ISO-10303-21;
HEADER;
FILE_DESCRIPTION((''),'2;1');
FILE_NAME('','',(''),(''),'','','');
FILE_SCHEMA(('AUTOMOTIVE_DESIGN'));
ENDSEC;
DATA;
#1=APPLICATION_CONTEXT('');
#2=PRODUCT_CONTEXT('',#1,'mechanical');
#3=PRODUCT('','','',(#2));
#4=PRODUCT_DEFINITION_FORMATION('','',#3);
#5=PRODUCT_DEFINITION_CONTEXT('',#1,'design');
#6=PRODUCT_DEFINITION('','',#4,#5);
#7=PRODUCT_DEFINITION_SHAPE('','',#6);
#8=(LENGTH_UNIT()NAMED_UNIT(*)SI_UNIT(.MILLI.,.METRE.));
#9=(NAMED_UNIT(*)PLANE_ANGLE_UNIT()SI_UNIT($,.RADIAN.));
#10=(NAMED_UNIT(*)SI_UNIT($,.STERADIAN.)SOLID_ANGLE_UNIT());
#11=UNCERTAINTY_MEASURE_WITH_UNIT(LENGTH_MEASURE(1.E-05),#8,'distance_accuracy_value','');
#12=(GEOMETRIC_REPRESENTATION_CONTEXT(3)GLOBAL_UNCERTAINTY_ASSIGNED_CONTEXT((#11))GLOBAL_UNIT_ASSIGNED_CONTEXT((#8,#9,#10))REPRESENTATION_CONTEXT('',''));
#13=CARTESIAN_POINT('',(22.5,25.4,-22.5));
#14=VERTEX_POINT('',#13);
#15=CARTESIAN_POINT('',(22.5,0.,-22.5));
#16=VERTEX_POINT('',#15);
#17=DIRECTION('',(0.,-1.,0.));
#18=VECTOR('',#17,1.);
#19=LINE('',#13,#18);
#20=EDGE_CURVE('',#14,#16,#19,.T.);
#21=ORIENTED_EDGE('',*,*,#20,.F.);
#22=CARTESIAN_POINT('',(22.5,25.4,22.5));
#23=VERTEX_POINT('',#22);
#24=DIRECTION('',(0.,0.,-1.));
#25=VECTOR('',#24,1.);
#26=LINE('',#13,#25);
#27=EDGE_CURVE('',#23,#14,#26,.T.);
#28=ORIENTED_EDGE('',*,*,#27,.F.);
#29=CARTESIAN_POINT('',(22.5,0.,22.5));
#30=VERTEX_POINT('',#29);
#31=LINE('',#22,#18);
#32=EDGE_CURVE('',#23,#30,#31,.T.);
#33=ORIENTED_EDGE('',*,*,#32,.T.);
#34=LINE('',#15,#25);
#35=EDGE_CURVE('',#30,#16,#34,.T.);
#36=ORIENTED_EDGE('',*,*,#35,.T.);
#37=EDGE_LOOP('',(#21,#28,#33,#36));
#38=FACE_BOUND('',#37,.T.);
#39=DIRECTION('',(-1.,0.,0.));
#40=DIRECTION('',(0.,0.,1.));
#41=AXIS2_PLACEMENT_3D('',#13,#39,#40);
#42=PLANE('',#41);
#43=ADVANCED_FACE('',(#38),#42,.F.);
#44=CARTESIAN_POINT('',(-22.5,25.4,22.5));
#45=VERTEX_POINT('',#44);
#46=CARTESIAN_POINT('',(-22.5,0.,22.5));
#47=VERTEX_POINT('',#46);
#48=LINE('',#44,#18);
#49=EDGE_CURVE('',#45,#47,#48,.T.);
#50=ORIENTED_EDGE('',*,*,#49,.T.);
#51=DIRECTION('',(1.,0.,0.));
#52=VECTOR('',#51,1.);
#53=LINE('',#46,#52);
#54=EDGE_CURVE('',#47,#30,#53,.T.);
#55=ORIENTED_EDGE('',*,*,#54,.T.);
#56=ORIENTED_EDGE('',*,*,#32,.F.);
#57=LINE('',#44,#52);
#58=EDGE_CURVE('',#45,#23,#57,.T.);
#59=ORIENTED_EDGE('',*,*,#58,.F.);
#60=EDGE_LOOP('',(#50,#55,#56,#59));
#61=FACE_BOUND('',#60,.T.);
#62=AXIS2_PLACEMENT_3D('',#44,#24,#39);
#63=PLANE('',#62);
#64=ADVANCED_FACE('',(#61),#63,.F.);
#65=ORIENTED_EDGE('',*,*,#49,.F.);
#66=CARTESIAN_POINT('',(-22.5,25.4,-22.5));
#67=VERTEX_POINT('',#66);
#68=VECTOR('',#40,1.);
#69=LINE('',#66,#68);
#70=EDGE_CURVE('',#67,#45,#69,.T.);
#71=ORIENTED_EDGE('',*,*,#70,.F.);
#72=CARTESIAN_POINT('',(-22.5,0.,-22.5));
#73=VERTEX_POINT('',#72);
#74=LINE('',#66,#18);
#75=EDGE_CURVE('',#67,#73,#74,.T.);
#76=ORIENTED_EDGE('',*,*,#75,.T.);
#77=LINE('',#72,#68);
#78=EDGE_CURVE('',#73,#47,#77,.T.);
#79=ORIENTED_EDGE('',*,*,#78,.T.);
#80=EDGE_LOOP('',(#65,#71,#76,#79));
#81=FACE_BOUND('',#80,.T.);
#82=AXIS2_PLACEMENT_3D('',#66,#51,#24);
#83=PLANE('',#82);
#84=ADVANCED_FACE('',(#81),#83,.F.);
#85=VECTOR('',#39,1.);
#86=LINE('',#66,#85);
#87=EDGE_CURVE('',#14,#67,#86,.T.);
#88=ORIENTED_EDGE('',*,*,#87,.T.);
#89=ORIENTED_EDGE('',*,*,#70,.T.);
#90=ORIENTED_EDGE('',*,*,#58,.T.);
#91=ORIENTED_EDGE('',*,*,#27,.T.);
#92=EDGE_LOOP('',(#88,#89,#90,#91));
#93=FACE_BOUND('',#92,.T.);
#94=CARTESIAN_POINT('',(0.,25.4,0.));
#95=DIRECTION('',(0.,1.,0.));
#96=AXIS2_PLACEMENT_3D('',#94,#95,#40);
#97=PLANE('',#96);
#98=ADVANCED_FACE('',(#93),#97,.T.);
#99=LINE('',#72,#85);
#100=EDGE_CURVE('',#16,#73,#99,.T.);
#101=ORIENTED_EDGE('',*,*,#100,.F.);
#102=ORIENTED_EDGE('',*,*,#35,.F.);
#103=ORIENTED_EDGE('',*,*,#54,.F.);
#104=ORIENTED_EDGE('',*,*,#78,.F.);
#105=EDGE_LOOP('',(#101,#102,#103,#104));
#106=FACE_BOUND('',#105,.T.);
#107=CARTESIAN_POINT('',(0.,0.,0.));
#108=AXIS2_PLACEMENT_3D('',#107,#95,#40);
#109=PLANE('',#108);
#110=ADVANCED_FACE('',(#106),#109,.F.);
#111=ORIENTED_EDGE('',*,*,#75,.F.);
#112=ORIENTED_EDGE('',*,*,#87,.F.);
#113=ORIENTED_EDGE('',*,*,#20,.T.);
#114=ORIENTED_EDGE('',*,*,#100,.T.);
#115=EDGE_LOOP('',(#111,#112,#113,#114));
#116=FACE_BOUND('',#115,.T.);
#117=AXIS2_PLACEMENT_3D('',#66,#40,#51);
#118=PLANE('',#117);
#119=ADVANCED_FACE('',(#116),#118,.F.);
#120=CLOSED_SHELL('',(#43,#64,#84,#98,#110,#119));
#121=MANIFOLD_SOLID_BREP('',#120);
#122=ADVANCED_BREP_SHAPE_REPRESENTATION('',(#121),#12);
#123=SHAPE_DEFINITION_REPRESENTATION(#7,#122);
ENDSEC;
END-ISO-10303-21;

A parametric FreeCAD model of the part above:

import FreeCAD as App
import Part
import Sketcher
from FreeCAD import Vector
Q = App.Units.Quantity

doc = App.newDocument("Part")
body = doc.addObject("PartDesign::Body", "Body")

# Sketch on XZ plane
sketch1 = doc.addObject("Sketcher::SketchObject", "Sketch")
body.addObject(sketch1)
sketch1.AttachmentSupport = (doc.XZ_Plane, [""])
sketch1.MapMode = "FlatFace"
sketch1.addGeometry([
    Part.LineSegment(Vector(-22.5, -22.5, 0), Vector(-22.5, 22.5, 0)),
    Part.LineSegment(Vector(-22.5, 22.5, 0), Vector(22.5, 22.5, 0)),
    Part.LineSegment(Vector(22.5, 22.5, 0), Vector(22.5, -22.5, 0)),
    Part.LineSegment(Vector(22.5, -22.5, 0), Vector(-22.5, -22.5, 0)),
], False)
sketch1.addConstraint([
    Sketcher.Constraint("Coincident", 0, 2, 1, 1),
    Sketcher.Constraint("Coincident", 1, 2, 2, 1),
    Sketcher.Constraint("Coincident", 2, 2, 3, 1),
    Sketcher.Constraint("Coincident", 3, 2, 0, 1),
    Sketcher.Constraint("Vertical", 0),
    Sketcher.Constraint("Horizontal", 1),
    Sketcher.Constraint("Vertical", 2),
    Sketcher.Constraint("Horizontal", 3),
    Sketcher.Constraint("Symmetric", 0, 2, 2, 2, -1, 1),
    Sketcher.Constraint("Equal", 3, 0),
    Sketcher.Constraint("DistanceX", 1, 1, 1, 2, Q("45 mm")),
])
pad1 = doc.addObject("PartDesign::Pad", "Pad")
body.addObject(pad1)
pad1.Profile = sketch1
pad1.Length = 25.4
pad1.Reversed = True

doc.recompute()
